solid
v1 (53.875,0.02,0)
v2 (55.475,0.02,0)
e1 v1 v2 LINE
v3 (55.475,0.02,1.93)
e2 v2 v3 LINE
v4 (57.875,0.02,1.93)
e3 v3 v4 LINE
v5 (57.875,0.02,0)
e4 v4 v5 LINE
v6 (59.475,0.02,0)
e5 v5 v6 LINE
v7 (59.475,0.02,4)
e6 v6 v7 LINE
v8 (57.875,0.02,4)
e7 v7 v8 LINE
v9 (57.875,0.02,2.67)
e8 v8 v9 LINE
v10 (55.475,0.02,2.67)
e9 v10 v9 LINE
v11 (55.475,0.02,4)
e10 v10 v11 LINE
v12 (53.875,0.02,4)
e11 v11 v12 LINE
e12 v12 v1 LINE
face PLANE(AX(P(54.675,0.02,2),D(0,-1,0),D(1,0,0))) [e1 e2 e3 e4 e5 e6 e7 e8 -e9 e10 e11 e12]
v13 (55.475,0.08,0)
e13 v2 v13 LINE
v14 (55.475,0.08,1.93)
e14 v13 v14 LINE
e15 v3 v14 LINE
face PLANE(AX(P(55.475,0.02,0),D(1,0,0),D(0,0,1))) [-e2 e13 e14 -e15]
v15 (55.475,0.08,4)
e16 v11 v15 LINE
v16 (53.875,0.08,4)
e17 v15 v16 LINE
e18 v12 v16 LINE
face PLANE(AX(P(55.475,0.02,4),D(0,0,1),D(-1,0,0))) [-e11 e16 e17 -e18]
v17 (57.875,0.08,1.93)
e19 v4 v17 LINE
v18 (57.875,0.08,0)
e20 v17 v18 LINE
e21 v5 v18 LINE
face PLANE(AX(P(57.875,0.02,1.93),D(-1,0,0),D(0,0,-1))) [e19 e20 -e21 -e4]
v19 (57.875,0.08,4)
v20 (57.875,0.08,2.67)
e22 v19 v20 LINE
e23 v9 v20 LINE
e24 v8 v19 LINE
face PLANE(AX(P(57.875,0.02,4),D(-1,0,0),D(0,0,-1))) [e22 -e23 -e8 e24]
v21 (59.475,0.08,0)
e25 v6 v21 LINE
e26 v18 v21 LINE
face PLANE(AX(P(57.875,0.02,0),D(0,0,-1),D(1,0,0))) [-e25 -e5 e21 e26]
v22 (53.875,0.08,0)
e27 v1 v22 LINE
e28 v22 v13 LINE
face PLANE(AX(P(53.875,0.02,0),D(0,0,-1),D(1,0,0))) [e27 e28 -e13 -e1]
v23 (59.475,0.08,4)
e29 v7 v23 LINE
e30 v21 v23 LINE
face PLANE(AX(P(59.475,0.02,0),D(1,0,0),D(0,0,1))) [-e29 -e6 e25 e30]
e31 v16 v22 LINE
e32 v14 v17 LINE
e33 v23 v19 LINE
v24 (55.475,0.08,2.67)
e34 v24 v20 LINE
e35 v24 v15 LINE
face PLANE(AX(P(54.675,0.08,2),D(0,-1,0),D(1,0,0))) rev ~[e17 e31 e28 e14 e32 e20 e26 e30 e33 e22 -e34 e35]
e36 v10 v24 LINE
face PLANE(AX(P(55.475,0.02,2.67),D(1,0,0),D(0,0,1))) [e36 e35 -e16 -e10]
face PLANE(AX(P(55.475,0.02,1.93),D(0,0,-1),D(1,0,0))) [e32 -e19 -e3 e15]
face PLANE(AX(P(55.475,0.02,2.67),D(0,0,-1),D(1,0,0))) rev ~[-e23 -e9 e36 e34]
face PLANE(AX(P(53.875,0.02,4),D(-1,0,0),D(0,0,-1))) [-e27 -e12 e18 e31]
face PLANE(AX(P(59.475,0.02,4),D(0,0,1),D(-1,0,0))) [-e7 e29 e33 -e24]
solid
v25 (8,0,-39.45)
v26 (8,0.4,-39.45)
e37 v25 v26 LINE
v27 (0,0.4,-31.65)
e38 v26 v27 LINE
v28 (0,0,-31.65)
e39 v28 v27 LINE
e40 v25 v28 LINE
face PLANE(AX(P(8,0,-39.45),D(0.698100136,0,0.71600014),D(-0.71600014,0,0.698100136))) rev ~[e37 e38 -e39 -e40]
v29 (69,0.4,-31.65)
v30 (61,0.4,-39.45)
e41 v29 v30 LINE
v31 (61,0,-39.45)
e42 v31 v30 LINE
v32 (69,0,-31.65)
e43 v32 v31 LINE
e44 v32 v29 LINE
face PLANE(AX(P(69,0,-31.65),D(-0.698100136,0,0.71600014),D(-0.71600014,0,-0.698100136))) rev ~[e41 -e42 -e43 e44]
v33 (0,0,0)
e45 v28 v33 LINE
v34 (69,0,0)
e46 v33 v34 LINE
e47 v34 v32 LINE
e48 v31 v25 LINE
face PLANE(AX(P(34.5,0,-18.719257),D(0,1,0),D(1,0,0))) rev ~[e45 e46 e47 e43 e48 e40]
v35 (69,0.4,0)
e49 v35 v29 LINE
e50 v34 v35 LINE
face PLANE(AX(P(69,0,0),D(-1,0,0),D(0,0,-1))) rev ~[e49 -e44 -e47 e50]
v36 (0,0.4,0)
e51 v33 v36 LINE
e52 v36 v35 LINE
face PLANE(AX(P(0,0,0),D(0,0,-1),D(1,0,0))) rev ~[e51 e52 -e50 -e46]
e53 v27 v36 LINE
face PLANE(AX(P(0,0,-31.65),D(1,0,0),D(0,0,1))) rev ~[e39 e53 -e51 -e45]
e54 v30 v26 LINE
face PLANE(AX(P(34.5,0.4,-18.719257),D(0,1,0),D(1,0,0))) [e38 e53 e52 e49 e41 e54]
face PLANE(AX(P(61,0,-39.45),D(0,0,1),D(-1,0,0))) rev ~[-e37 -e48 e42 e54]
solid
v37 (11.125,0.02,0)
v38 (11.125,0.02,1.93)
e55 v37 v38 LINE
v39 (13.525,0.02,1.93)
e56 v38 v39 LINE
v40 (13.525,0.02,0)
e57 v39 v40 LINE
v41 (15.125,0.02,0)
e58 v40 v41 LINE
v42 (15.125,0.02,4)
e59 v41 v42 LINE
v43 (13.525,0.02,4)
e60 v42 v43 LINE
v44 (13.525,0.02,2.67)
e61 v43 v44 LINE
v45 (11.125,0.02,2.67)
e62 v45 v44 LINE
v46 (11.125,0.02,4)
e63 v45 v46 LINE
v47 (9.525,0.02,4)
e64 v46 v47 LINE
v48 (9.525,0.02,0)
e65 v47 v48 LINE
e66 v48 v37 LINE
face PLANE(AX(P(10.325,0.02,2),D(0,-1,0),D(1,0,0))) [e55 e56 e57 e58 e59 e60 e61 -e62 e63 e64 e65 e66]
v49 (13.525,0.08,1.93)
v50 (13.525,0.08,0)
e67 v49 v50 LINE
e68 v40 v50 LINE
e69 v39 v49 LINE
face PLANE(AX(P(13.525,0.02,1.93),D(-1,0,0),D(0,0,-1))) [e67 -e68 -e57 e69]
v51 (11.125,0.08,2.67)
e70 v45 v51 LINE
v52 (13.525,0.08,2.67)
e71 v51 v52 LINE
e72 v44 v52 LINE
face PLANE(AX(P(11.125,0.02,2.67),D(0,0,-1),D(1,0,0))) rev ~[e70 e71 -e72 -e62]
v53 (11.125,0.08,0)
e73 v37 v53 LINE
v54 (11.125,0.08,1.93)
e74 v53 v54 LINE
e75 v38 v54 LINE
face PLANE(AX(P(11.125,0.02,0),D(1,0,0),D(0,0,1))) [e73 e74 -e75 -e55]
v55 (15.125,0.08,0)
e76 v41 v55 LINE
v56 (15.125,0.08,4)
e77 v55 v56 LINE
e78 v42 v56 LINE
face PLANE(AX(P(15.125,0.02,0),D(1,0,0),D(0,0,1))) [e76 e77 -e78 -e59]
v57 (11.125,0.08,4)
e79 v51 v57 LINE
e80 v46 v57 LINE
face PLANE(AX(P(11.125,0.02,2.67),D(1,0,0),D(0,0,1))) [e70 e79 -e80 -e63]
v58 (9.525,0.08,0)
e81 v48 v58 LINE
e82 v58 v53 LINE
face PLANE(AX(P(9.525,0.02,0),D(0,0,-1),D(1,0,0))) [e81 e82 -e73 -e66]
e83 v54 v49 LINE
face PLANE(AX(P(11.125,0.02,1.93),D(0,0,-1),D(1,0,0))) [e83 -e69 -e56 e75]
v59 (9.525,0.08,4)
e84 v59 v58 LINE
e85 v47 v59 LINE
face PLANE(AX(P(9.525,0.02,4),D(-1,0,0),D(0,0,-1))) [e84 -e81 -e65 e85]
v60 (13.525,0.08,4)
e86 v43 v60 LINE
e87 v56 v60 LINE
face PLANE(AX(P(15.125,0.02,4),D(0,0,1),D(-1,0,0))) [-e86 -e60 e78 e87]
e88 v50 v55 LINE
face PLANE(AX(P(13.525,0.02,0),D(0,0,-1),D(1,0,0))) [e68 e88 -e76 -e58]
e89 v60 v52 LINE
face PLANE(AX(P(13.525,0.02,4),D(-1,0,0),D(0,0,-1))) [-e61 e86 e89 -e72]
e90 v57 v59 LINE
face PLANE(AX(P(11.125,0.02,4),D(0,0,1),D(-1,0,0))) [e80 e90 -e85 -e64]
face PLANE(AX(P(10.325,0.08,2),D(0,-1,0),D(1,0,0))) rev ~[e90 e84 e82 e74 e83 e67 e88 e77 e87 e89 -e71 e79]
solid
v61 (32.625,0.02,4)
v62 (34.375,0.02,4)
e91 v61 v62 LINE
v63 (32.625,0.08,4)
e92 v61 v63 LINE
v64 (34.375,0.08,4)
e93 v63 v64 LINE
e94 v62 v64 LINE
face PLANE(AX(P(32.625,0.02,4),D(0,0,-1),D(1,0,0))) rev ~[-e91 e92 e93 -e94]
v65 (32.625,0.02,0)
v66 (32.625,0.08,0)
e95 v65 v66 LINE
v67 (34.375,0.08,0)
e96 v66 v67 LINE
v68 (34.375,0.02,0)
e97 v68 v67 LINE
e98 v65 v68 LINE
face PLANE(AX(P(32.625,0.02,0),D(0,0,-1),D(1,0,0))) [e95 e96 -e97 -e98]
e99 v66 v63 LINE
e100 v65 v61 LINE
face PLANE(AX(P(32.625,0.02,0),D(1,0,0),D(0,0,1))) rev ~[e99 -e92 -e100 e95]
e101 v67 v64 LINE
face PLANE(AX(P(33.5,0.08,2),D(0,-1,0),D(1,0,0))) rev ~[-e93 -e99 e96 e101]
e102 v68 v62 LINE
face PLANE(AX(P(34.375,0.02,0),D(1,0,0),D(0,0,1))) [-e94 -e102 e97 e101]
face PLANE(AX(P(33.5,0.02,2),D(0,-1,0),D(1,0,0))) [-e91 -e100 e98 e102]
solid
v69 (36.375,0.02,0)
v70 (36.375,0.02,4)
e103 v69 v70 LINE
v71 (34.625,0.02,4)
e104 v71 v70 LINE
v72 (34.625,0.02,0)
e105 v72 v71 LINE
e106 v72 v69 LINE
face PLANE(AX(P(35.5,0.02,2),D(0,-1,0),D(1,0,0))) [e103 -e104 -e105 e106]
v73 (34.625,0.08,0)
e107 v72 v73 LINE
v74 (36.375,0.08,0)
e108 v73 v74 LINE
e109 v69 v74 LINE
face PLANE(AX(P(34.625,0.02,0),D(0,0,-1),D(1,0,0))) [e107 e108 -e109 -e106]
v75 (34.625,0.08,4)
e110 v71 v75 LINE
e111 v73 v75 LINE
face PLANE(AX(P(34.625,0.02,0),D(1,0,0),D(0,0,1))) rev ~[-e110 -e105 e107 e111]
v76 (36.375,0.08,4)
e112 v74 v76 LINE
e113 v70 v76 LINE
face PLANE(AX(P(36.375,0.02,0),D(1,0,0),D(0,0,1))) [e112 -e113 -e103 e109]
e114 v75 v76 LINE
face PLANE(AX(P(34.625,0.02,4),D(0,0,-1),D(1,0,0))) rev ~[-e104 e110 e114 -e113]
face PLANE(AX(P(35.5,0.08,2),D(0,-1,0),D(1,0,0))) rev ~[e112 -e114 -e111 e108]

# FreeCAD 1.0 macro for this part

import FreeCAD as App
import Part
import Sketcher
from FreeCAD import Vector
Q = App.Units.Quantity


def add_polygon(sketch, points):
    """Adds a closed chain of lines whose ends are joined by coincident constraints."""
    first, n = sketch.GeometryCount, len(points)
    for a, b in zip(points, points[1:] + points[:1]):
        sketch.addGeometry(Part.LineSegment(App.Vector(*a, 0), App.Vector(*b, 0)), False)
    for i in range(n):
        sketch.addConstraint(Sketcher.Constraint("Coincident", first + i, 2, first + (i + 1) % n, 1))

doc = App.newDocument("Part")
params = doc.addObject("Spreadsheet::Sheet", "Params")
for row, (alias, value) in enumerate([
    ("sketch1_width", "69 mm"),
    ("sketch1_width2", "53 mm"),
    ("sketch1_height", "31.65 mm"),
    ("pad1_length", "0.4 mm"),
    ("sketch2_height", "4 mm"),
    ("sketch2_width", "1.6 mm"),
    ("sketch2_width2", "2.4 mm"),
    ("sketch2_width3", "1.75 mm"),
    ("sketch2_height2", "1.93 mm"),
    ("pad2_length", "0.06 mm"),
], start=1):
    params.set(f"A{row}", alias)
    params.set(f"B{row}", "=" + value)
    params.setAlias(f"B{row}", alias)

body = doc.addObject("PartDesign::Body", "Body")

sketch1 = body.newObject("Sketcher::SketchObject", "Sketch")
sketch1.AttachmentSupport = (doc.getObject("XZ_Plane"), [""])
sketch1.MapMode = "FlatFace"
add_polygon(sketch1, [(8, -39.45), (0, -31.65), (0, 0), (69, 0), (69, -31.65), (61, -39.45)])
sketch1.addConstraint(Sketcher.Constraint("Vertical", 1))
sketch1.addConstraint(Sketcher.Constraint("Horizontal", 2))
sketch1.addConstraint(Sketcher.Constraint("Vertical", 3))
sketch1.addConstraint(Sketcher.Constraint("Horizontal", 5))
sketch1.addConstraint(Sketcher.Constraint("Coincident", 1, 2, -1, 1))
sketch1.addConstraint(Sketcher.Constraint("Horizontal", 0, 2, 3, 2))
sketch1.addConstraint(Sketcher.Constraint("Equal", 0, 4))
sketch1.addConstraint(Sketcher.Constraint("DistanceX", 2, 1, 2, 2, Q("69 mm")))
sketch1.addConstraint(Sketcher.Constraint("DistanceX", 5, 2, 5, 1, Q("53 mm")))
sketch1.addConstraint(Sketcher.Constraint("DistanceY", 1, 1, 1, 2, Q("31.65 mm")))
sketch1.addConstraint(Sketcher.Constraint("DistanceY", 4, 2, 3, 2, Q("7.8 mm")))
sketch1.setExpression("Constraints[13]", "Params.sketch1_width")
sketch1.setExpression("Constraints[14]", "Params.sketch1_width2")
sketch1.setExpression("Constraints[15]", "Params.sketch1_height")
pad1 = body.newObject("PartDesign::Pad", "Pad")
pad1.Profile = sketch1
pad1.setExpression("Length", "Params.pad1_length")
pad1.Reversed = True
body2 = doc.addObject("PartDesign::Body", "Body001")
body2.AllowCompound = True

sketch2 = body2.newObject("Sketcher::SketchObject", "Sketch001")
sketch2.AttachmentSupport = (doc.getObject("XZ_Plane001"), [""])
sketch2.MapMode = "FlatFace"
sketch2.AttachmentOffset = App.Placement(Vector(0, 0, -0.02), App.Rotation())
add_polygon(sketch2, [(9.525, 4), (9.525, 0), (11.125, 0), (11.125, 1.93), (13.525, 1.93), (13.525, 0), (15.125, 0), (15.125, 4), (13.525, 4), (13.525, 2.67), (11.125, 2.67), (11.125, 4)])
add_polygon(sketch2, [(32.625, 4), (32.625, 0), (34.375, 0), (34.375, 4)])
add_polygon(sketch2, [(34.625, 4), (34.625, 0), (36.375, 0), (36.375, 4)])
add_polygon(sketch2, [(53.875, 0), (55.475, 0), (55.475, 1.93), (57.875, 1.93), (57.875, 0), (59.475, 0), (59.475, 4), (57.875, 4), (57.875, 2.67), (55.475, 2.67), (55.475, 4), (53.875, 4)])
sketch2.addConstraint(Sketcher.Constraint("Vertical", 0))
sketch2.addConstraint(Sketcher.Constraint("Horizontal", 1))
sketch2.addConstraint(Sketcher.Constraint("Vertical", 2))
sketch2.addConstraint(Sketcher.Constraint("Horizontal", 3))
sketch2.addConstraint(Sketcher.Constraint("Vertical", 4))
sketch2.addConstraint(Sketcher.Constraint("Horizontal", 5))
sketch2.addConstraint(Sketcher.Constraint("Vertical", 6))
sketch2.addConstraint(Sketcher.Constraint("Horizontal", 7))
sketch2.addConstraint(Sketcher.Constraint("Vertical", 8))
sketch2.addConstraint(Sketcher.Constraint("Horizontal", 9))
sketch2.addConstraint(Sketcher.Constraint("Vertical", 10))
sketch2.addConstraint(Sketcher.Constraint("Horizontal", 11))
sketch2.addConstraint(Sketcher.Constraint("Vertical", 12))
sketch2.addConstraint(Sketcher.Constraint("Horizontal", 13))
sketch2.addConstraint(Sketcher.Constraint("Vertical", 14))
sketch2.addConstraint(Sketcher.Constraint("Horizontal", 15))
sketch2.addConstraint(Sketcher.Constraint("Vertical", 16))
sketch2.addConstraint(Sketcher.Constraint("Horizontal", 17))
sketch2.addConstraint(Sketcher.Constraint("Vertical", 18))
sketch2.addConstraint(Sketcher.Constraint("Horizontal", 19))
sketch2.addConstraint(Sketcher.Constraint("Horizontal", 20))
sketch2.addConstraint(Sketcher.Constraint("Vertical", 21))
sketch2.addConstraint(Sketcher.Constraint("Horizontal", 22))
sketch2.addConstraint(Sketcher.Constraint("Vertical", 23))
sketch2.addConstraint(Sketcher.Constraint("Horizontal", 24))
sketch2.addConstraint(Sketcher.Constraint("Vertical", 25))
sketch2.addConstraint(Sketcher.Constraint("Horizontal", 26))
sketch2.addConstraint(Sketcher.Constraint("Vertical", 27))
sketch2.addConstraint(Sketcher.Constraint("Horizontal", 28))
sketch2.addConstraint(Sketcher.Constraint("Vertical", 29))
sketch2.addConstraint(Sketcher.Constraint("Horizontal", 30))
sketch2.addConstraint(Sketcher.Constraint("Vertical", 31))
sketch2.addConstraint(Sketcher.Constraint("PointOnObject", 0, 2, -1))
sketch2.addConstraint(Sketcher.Constraint("PointOnObject", 4, 2, -1))
sketch2.addConstraint(Sketcher.Constraint("PointOnObject", 12, 2, -1))
sketch2.addConstraint(Sketcher.Constraint("PointOnObject", 16, 2, -1))
sketch2.addConstraint(Sketcher.Constraint("PointOnObject", 20, 2, -1))
sketch2.addConstraint(Sketcher.Constraint("PointOnObject", 23, 2, -1))
sketch2.addConstraint(Sketcher.Constraint("Horizontal", 7, 2, 10, 2))
sketch2.addConstraint(Sketcher.Constraint("Horizontal", 11, 2, 14, 2))
sketch2.addConstraint(Sketcher.Constraint("Horizontal", 15, 2, 18, 2))
sketch2.addConstraint(Sketcher.Constraint("Horizontal", 3, 2, 21, 2))
sketch2.addConstraint(Sketcher.Constraint("Horizontal", 19, 2, 25, 2))
sketch2.addConstraint(Sketcher.Constraint("Horizontal", 9, 2, 27, 2))
sketch2.addConstraint(Sketcher.Constraint("Horizontal", 26, 2, 29, 2))
sketch2.addConstraint(Sketcher.Constraint("Vertical", 4, 2, 7, 2))
sketch2.addConstraint(Sketcher.Constraint("Vertical", 2, 2, 9, 2))
sketch2.addConstraint(Sketcher.Constraint("Vertical", 23, 2, 26, 2))
sketch2.addConstraint(Sketcher.Constraint("Vertical", 21, 2, 28, 2))
sketch2.addConstraint(Sketcher.Constraint("Equal", 1, 5))
sketch2.addConstraint(Sketcher.Constraint("Equal", 15, 17))
sketch2.addConstraint(Sketcher.Constraint("Equal", 11, 20))
sketch2.addConstraint(Sketcher.Constraint("Equal", 9, 22))
sketch2.addConstraint(Sketcher.Constraint("Equal", 20, 24))
sketch2.addConstraint(Sketcher.Constraint("DistanceY", 0, 2, 0, 1, Q("4 mm")))
sketch2.addConstraint(Sketcher.Constraint("DistanceX", 1, 1, 1, 2, Q("1.6 mm")))
sketch2.addConstraint(Sketcher.Constraint("DistanceX", 3, 1, 3, 2, Q("2.4 mm")))
sketch2.addConstraint(Sketcher.Constraint("DistanceX", 12, 2, 16, 2, Q("2 mm")))
sketch2.addConstraint(Sketcher.Constraint("DistanceX", 13, 1, 13, 2, Q("1.75 mm")))
sketch2.addConstraint(Sketcher.Constraint("DistanceY", 2, 1, 2, 2, Q("1.93 mm")))
sketch2.addConstraint(Sketcher.Constraint("DistanceY", 8, 2, 8, 1, Q("1.33 mm")))
sketch2.addConstraint(Sketcher.Constraint("DistanceX", 5, 2, 12, 2, Q("17.5 mm")))
sketch2.addConstraint(Sketcher.Constraint("DistanceX", 17, 2, 20, 2, Q("19.1 mm")))
sketch2.addConstraint(Sketcher.Constraint("DistanceX", -1, 1, 0, 2, Q("9.525 mm")))
sketch2.setExpression("Constraints[86]", "Params.sketch2_height")
sketch2.setExpression("Constraints[87]", "Params.sketch2_width")
sketch2.setExpression("Constraints[88]", "Params.sketch2_width2")
sketch2.setExpression("Constraints[90]", "Params.sketch2_width3")
sketch2.setExpression("Constraints[91]", "Params.sketch2_height2")
pad2 = body2.newObject("PartDesign::Pad", "Pad001")
pad2.Profile = sketch2
pad2.setExpression("Length", "Params.pad2_length")
pad2.Reversed = True

doc.recompute()
